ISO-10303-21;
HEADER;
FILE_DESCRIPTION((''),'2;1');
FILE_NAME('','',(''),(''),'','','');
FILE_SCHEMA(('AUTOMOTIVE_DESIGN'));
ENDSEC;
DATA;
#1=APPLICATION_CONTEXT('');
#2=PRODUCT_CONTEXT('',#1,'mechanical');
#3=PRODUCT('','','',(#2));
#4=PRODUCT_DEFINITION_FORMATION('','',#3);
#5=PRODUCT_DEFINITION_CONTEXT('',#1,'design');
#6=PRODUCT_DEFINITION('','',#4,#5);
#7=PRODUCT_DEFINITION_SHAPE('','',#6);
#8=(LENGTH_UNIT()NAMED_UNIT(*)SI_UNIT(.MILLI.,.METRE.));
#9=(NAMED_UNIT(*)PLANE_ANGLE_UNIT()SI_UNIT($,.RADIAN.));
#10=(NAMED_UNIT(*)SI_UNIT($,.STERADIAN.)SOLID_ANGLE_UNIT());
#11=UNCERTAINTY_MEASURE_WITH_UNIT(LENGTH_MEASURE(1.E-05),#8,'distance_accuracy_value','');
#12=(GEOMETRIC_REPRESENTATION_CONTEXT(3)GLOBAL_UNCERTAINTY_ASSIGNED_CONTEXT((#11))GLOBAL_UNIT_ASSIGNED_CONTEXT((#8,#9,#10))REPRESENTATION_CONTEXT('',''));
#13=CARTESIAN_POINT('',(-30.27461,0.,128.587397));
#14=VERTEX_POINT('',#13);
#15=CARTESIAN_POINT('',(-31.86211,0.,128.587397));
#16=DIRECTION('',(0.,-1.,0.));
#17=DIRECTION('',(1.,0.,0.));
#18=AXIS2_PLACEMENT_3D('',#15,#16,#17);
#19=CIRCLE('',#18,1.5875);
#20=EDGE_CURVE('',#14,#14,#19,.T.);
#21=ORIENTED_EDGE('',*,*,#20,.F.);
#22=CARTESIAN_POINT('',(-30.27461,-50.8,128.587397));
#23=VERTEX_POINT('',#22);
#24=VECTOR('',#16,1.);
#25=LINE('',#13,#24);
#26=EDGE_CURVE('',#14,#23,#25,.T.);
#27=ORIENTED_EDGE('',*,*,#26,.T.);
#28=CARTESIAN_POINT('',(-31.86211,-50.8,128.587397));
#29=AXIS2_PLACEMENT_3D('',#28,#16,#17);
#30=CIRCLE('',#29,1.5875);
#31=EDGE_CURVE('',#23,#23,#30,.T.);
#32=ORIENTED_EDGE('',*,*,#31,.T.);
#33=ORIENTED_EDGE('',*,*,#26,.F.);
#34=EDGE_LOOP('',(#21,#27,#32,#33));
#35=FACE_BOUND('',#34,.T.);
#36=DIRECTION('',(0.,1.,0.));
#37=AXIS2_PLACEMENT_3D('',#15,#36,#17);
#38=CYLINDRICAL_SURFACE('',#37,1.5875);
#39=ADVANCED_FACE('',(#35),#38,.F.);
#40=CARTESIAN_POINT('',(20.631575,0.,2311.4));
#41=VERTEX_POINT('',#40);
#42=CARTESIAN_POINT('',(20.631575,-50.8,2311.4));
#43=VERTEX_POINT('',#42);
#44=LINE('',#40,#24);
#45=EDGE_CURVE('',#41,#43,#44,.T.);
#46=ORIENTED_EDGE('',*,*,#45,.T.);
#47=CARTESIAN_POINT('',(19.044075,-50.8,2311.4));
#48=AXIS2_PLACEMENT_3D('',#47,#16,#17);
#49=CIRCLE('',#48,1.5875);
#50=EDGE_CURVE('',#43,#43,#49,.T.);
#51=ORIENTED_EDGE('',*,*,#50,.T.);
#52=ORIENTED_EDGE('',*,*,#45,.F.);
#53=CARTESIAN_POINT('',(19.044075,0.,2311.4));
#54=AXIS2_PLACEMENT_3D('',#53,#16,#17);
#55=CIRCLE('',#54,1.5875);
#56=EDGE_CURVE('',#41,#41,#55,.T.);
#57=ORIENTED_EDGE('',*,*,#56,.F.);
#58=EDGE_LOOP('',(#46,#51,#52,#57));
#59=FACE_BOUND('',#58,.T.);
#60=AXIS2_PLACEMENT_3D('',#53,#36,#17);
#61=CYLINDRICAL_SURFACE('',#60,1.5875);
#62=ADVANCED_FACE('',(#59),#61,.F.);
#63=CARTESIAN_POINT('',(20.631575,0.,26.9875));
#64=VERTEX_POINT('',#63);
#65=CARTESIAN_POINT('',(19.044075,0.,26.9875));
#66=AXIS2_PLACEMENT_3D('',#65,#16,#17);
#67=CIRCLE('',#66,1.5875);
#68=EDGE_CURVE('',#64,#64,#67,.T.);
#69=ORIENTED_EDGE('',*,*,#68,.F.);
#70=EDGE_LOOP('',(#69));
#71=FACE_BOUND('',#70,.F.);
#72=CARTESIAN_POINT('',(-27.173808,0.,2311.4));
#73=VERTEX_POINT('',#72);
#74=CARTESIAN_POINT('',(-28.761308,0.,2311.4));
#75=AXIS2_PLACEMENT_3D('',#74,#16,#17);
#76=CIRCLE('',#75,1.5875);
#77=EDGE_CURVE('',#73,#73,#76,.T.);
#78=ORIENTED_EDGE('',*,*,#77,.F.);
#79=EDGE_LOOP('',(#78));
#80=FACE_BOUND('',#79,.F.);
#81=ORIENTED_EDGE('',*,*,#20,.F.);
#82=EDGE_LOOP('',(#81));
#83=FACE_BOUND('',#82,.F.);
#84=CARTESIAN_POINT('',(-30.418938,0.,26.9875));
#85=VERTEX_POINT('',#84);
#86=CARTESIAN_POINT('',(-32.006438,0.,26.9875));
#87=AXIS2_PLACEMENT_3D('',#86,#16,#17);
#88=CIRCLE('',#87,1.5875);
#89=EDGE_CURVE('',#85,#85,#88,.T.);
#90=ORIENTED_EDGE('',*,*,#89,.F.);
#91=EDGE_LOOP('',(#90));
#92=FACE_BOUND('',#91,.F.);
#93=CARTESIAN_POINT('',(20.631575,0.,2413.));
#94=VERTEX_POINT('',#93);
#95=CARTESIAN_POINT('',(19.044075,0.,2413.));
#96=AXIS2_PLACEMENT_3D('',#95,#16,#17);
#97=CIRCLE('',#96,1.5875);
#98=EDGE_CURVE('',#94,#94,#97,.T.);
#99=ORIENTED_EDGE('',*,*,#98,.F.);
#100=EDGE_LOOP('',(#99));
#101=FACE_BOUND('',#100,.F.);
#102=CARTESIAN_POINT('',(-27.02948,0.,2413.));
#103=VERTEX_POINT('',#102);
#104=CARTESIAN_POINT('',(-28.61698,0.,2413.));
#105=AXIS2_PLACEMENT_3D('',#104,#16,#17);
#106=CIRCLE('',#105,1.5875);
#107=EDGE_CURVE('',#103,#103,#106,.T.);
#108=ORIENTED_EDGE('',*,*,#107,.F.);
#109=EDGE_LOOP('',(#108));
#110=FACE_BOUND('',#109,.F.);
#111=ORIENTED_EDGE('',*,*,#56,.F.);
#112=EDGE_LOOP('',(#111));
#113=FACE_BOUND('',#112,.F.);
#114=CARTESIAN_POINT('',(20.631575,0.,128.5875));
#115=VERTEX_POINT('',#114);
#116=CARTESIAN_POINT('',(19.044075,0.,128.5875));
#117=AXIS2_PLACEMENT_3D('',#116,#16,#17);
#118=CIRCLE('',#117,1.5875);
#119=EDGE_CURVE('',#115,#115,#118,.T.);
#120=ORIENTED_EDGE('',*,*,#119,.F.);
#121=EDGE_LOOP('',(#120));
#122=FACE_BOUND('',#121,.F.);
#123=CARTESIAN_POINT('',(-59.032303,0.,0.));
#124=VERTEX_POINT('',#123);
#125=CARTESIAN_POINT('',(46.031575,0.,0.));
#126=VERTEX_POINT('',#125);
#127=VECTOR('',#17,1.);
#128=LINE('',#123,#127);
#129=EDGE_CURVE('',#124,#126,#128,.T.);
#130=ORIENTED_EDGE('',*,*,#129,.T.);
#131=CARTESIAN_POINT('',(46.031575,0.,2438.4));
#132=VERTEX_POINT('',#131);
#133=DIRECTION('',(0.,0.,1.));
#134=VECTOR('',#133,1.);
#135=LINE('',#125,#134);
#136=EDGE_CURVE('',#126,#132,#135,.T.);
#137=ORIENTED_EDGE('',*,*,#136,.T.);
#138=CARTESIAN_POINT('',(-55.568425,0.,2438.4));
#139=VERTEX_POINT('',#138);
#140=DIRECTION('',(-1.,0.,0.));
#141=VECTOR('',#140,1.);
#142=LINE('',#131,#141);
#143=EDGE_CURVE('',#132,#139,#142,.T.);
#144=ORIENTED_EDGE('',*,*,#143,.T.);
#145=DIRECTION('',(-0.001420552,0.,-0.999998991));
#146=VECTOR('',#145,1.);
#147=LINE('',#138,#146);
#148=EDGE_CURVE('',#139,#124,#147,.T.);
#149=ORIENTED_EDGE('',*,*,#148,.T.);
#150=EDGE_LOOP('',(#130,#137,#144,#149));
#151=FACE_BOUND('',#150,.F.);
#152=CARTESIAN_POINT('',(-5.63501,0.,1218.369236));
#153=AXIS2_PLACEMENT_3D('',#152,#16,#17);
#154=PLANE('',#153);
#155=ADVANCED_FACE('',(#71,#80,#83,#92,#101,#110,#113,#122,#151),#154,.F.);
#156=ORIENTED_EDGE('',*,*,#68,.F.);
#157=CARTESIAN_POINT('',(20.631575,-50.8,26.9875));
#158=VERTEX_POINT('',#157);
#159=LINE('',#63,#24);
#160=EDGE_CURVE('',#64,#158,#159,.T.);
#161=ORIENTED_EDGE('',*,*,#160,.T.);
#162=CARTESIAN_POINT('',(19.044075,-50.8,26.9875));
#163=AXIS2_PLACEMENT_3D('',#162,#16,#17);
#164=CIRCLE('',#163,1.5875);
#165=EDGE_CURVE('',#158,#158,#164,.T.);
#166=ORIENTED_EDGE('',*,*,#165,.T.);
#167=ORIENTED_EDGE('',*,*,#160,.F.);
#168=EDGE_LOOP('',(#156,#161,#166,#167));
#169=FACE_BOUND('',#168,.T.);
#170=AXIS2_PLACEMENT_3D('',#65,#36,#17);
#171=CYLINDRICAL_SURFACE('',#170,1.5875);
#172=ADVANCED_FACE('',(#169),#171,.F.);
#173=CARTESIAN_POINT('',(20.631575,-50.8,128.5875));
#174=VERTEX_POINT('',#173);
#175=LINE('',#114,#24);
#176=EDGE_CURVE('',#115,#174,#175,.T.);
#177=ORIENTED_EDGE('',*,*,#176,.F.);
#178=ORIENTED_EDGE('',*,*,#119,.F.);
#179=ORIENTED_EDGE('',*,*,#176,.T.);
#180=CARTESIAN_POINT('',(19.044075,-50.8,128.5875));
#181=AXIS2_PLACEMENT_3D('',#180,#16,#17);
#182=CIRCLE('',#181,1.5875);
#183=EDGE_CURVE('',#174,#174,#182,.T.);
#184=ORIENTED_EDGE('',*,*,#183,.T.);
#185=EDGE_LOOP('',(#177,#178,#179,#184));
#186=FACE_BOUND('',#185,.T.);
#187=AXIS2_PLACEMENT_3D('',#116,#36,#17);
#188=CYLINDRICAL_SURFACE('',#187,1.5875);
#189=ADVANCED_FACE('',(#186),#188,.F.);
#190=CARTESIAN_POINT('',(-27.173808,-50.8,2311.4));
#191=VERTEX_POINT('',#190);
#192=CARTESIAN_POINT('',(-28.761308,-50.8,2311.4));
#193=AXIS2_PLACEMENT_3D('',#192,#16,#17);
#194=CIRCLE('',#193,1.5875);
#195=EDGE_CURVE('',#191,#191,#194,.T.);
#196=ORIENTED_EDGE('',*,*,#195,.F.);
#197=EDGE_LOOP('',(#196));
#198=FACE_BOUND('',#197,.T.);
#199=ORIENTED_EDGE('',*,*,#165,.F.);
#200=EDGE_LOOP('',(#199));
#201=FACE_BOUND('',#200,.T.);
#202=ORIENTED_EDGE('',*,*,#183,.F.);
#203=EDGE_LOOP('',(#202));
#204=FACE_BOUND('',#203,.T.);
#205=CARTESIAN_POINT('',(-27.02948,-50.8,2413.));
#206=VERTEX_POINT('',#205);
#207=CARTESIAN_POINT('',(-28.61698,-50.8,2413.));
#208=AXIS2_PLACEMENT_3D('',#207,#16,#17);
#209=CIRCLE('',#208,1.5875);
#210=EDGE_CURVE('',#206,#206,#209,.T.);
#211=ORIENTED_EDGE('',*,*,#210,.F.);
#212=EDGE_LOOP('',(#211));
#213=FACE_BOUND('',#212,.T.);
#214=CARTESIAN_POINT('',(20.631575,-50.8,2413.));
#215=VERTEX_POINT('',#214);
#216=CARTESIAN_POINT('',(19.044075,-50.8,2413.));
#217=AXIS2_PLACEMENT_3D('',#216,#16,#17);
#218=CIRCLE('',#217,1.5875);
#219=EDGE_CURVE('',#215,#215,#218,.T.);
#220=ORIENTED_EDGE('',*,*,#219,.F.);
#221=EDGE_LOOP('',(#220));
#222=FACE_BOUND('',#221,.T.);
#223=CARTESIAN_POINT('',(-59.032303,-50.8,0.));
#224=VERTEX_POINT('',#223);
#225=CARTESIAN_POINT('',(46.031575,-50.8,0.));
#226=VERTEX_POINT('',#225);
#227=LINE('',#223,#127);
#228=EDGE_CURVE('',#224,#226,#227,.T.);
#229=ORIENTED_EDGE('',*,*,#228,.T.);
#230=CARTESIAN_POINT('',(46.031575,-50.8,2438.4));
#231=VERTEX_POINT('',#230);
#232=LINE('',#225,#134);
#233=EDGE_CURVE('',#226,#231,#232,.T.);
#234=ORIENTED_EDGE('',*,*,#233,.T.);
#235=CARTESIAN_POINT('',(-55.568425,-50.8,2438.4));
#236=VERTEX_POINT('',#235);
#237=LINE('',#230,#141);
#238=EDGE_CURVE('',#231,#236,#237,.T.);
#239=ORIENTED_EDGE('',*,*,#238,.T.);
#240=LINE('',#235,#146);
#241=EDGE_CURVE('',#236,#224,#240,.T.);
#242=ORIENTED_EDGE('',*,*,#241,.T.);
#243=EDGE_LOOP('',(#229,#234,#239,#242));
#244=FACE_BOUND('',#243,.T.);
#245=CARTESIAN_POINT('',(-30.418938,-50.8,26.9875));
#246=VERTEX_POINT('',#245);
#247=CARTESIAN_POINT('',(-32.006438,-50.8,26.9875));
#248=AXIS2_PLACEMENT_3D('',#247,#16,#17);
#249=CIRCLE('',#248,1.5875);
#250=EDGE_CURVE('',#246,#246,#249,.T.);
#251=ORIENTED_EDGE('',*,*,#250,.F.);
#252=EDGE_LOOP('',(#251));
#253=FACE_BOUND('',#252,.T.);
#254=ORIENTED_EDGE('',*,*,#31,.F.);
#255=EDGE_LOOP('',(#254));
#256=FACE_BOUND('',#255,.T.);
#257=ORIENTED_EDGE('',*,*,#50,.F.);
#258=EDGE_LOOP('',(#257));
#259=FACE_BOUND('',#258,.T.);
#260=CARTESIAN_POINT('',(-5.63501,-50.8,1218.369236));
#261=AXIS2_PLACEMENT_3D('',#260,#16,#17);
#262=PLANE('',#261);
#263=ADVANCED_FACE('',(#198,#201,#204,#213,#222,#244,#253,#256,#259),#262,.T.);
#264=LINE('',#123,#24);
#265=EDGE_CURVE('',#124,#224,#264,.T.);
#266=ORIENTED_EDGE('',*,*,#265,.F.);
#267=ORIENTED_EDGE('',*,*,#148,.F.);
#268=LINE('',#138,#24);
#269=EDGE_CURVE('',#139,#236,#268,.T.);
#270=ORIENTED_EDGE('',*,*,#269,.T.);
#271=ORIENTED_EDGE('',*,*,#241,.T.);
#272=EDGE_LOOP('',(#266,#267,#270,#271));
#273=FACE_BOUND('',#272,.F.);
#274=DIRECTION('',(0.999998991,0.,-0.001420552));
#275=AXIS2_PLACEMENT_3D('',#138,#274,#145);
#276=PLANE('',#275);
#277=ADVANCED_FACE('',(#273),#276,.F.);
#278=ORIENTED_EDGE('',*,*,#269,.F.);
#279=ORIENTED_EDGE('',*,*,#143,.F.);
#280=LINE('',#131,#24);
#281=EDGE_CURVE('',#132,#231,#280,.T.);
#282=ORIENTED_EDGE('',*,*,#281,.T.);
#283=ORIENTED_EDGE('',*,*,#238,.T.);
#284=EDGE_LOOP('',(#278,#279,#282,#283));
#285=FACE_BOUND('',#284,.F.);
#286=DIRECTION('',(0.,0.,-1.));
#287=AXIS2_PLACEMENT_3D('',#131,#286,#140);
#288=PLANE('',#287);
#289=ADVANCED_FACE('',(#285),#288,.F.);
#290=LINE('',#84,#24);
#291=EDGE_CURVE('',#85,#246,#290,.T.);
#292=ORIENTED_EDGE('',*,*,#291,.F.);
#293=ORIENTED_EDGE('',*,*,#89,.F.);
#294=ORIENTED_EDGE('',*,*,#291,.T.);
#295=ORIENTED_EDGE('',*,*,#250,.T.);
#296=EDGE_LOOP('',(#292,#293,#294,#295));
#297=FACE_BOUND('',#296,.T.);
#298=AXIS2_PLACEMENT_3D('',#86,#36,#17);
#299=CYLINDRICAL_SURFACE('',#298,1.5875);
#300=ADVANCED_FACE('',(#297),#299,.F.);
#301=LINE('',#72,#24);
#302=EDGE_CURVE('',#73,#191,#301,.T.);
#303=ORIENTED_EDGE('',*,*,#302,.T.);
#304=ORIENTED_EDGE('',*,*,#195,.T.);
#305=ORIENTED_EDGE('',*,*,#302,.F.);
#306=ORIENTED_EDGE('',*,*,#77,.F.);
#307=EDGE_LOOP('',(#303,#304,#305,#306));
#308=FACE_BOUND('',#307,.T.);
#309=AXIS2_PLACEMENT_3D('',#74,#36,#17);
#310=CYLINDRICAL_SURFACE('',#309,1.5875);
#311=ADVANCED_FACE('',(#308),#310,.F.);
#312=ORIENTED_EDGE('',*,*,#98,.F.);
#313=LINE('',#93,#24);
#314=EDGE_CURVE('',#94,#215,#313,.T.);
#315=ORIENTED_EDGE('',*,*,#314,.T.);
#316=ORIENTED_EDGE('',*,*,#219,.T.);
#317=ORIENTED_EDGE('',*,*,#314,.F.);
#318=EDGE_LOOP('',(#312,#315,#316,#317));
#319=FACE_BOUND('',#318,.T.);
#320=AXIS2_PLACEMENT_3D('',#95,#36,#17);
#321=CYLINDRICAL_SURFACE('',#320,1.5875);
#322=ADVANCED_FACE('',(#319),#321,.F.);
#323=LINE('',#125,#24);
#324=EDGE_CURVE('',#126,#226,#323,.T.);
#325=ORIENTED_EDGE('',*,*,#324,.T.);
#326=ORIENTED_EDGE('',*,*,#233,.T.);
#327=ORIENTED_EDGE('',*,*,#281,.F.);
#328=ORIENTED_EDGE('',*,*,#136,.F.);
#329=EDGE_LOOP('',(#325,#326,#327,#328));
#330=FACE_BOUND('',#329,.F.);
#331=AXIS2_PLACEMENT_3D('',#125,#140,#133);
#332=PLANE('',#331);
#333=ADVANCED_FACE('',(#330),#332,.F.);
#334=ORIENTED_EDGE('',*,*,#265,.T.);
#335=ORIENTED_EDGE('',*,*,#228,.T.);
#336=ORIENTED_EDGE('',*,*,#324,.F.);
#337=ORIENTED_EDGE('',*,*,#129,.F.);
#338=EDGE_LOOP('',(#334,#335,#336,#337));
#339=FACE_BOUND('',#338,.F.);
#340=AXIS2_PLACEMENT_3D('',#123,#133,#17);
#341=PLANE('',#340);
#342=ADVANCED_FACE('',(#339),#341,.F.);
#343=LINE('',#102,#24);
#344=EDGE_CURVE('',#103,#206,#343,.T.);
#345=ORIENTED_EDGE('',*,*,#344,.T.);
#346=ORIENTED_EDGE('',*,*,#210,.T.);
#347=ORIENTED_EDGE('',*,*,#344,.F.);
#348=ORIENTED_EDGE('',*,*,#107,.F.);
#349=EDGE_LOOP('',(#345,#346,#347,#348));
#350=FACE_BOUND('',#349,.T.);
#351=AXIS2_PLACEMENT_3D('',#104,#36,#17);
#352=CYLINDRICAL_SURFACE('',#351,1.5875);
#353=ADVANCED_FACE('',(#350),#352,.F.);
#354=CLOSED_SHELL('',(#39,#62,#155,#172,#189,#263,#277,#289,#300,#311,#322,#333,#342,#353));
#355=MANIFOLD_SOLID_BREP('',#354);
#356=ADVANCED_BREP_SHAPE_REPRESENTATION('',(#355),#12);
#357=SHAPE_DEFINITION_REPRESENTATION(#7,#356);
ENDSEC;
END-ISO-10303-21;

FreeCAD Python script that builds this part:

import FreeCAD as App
import Part
import Sketcher
from FreeCAD import Vector
Q = App.Units.Quantity


def add_polygon(sketch, points):
    """Adds a closed chain of lines whose ends are joined by coincident constraints."""
    first, n = sketch.GeometryCount, len(points)
    for a, b in zip(points, points[1:] + points[:1]):
        sketch.addGeometry(Part.LineSegment(App.Vector(*a, 0), App.Vector(*b, 0)), False)
    for i in range(n):
        sketch.addConstraint(Sketcher.Constraint("Coincident", first + i, 2, first + (i + 1) % n, 1))

doc = App.newDocument("Part")
body = doc.addObject("PartDesign::Body", "Body")

# Sketch on XZ plane
sketch1 = body.newObject("Sketcher::SketchObject", "Sketch")
sketch1.AttachmentSupport = (doc.getObject("XZ_Plane"), [""])
sketch1.MapMode = "FlatFace"
add_polygon(sketch1, [(46, 2438.4), (-55.6, 2438.4), (-59, 0), (46, 0)])  # lines 0-3
sketch1.addGeometry(Part.Circle(Vector(-32, 27, 0), Vector(0, 0, 1), 1.6), False)  # 4
sketch1.addGeometry(Part.Circle(Vector(-31.9, 128.6, 0), Vector(0, 0, 1), 1.6), False)  # 5
sketch1.addGeometry(Part.Circle(Vector(19, 27, 0), Vector(0, 0, 1), 1.6), False)  # 6
sketch1.addGeometry(Part.Circle(Vector(19, 128.6, 0), Vector(0, 0, 1), 1.6), False)  # 7
sketch1.addGeometry(Part.Circle(Vector(-28.8, 2311.4, 0), Vector(0, 0, 1), 1.6), False)  # 8
sketch1.addGeometry(Part.Circle(Vector(-28.6, 2413, 0), Vector(0, 0, 1), 1.6), False)  # 9
sketch1.addGeometry(Part.Circle(Vector(19, 2311.4, 0), Vector(0, 0, 1), 1.6), False)  # 10
sketch1.addGeometry(Part.Circle(Vector(19, 2413, 0), Vector(0, 0, 1), 1.6), False)  # 11
sketch1.addConstraint([
    Sketcher.Constraint("Horizontal", 0),
    Sketcher.Constraint("Horizontal", 2),
    Sketcher.Constraint("Vertical", 3),
    Sketcher.Constraint("Equal", 4, 5),
    Sketcher.Constraint("Equal", 5, 6),
    Sketcher.Constraint("Equal", 6, 7),
    Sketcher.Constraint("Equal", 7, 8),
    Sketcher.Constraint("Equal", 8, 9),
    Sketcher.Constraint("Equal", 9, 10),
    Sketcher.Constraint("Equal", 10, 11),
    Sketcher.Constraint("PointOnObject", 1, 2, -1),
    Sketcher.Constraint("Horizontal", 4, 3, 6, 3),
    Sketcher.Constraint("Horizontal", 8, 3, 10, 3),
    Sketcher.Constraint("Horizontal", 9, 3, 11, 3),
    Sketcher.Constraint("Vertical", 6, 3, 7, 3),
    Sketcher.Constraint("Vertical", 7, 3, 10, 3),
    Sketcher.Constraint("Vertical", 10, 3, 11, 3),
    Sketcher.Constraint("DistanceX", 0, 2, 0, 1, Q("4 in")),
    Sketcher.Constraint("DistanceY", 3, 1, 3, 2, Q("96 in")),
    Sketcher.Constraint("Diameter", 4, Q("0.125 in")),
    Sketcher.Constraint("DistanceY", -1, 1, 8, 3, Q("91 in")),
    Sketcher.Constraint("DistanceY", -1, 1, 9, 3, Q("95 in")),
    Sketcher.Constraint("DistanceY", 6, 3, 7, 3, Q("4 in")),
    Sketcher.Constraint("DistanceY", -1, 1, 4, 3, Q("1.0625 in")),
    Sketcher.Constraint("DistanceX", 0, 2, 11, 3, Q("2.9375 in")),
    Sketcher.Constraint("DistanceX", 2, 1, 2, 2, 105.063878),
    Sketcher.Constraint("DistanceX", 4, 3, -1, 1, 32.006438),
    Sketcher.Constraint("DistanceX", 5, 3, -1, 1, 31.86211),
    Sketcher.Constraint("DistanceX", 9, 3, -1, 1, 28.61698),
    Sketcher.Constraint("DistanceX", 4, 3, 8, 3, 3.24513),
    Sketcher.Constraint("DistanceY", -1, 1, 5, 3, 128.587397),
    Sketcher.Constraint("DistanceX", -1, 1, 6, 3, 19.044075),
])
pad1 = body.newObject("PartDesign::Pad", "Pad")
pad1.Profile = sketch1
pad1.Length = Q("2 in")

doc.recompute()
